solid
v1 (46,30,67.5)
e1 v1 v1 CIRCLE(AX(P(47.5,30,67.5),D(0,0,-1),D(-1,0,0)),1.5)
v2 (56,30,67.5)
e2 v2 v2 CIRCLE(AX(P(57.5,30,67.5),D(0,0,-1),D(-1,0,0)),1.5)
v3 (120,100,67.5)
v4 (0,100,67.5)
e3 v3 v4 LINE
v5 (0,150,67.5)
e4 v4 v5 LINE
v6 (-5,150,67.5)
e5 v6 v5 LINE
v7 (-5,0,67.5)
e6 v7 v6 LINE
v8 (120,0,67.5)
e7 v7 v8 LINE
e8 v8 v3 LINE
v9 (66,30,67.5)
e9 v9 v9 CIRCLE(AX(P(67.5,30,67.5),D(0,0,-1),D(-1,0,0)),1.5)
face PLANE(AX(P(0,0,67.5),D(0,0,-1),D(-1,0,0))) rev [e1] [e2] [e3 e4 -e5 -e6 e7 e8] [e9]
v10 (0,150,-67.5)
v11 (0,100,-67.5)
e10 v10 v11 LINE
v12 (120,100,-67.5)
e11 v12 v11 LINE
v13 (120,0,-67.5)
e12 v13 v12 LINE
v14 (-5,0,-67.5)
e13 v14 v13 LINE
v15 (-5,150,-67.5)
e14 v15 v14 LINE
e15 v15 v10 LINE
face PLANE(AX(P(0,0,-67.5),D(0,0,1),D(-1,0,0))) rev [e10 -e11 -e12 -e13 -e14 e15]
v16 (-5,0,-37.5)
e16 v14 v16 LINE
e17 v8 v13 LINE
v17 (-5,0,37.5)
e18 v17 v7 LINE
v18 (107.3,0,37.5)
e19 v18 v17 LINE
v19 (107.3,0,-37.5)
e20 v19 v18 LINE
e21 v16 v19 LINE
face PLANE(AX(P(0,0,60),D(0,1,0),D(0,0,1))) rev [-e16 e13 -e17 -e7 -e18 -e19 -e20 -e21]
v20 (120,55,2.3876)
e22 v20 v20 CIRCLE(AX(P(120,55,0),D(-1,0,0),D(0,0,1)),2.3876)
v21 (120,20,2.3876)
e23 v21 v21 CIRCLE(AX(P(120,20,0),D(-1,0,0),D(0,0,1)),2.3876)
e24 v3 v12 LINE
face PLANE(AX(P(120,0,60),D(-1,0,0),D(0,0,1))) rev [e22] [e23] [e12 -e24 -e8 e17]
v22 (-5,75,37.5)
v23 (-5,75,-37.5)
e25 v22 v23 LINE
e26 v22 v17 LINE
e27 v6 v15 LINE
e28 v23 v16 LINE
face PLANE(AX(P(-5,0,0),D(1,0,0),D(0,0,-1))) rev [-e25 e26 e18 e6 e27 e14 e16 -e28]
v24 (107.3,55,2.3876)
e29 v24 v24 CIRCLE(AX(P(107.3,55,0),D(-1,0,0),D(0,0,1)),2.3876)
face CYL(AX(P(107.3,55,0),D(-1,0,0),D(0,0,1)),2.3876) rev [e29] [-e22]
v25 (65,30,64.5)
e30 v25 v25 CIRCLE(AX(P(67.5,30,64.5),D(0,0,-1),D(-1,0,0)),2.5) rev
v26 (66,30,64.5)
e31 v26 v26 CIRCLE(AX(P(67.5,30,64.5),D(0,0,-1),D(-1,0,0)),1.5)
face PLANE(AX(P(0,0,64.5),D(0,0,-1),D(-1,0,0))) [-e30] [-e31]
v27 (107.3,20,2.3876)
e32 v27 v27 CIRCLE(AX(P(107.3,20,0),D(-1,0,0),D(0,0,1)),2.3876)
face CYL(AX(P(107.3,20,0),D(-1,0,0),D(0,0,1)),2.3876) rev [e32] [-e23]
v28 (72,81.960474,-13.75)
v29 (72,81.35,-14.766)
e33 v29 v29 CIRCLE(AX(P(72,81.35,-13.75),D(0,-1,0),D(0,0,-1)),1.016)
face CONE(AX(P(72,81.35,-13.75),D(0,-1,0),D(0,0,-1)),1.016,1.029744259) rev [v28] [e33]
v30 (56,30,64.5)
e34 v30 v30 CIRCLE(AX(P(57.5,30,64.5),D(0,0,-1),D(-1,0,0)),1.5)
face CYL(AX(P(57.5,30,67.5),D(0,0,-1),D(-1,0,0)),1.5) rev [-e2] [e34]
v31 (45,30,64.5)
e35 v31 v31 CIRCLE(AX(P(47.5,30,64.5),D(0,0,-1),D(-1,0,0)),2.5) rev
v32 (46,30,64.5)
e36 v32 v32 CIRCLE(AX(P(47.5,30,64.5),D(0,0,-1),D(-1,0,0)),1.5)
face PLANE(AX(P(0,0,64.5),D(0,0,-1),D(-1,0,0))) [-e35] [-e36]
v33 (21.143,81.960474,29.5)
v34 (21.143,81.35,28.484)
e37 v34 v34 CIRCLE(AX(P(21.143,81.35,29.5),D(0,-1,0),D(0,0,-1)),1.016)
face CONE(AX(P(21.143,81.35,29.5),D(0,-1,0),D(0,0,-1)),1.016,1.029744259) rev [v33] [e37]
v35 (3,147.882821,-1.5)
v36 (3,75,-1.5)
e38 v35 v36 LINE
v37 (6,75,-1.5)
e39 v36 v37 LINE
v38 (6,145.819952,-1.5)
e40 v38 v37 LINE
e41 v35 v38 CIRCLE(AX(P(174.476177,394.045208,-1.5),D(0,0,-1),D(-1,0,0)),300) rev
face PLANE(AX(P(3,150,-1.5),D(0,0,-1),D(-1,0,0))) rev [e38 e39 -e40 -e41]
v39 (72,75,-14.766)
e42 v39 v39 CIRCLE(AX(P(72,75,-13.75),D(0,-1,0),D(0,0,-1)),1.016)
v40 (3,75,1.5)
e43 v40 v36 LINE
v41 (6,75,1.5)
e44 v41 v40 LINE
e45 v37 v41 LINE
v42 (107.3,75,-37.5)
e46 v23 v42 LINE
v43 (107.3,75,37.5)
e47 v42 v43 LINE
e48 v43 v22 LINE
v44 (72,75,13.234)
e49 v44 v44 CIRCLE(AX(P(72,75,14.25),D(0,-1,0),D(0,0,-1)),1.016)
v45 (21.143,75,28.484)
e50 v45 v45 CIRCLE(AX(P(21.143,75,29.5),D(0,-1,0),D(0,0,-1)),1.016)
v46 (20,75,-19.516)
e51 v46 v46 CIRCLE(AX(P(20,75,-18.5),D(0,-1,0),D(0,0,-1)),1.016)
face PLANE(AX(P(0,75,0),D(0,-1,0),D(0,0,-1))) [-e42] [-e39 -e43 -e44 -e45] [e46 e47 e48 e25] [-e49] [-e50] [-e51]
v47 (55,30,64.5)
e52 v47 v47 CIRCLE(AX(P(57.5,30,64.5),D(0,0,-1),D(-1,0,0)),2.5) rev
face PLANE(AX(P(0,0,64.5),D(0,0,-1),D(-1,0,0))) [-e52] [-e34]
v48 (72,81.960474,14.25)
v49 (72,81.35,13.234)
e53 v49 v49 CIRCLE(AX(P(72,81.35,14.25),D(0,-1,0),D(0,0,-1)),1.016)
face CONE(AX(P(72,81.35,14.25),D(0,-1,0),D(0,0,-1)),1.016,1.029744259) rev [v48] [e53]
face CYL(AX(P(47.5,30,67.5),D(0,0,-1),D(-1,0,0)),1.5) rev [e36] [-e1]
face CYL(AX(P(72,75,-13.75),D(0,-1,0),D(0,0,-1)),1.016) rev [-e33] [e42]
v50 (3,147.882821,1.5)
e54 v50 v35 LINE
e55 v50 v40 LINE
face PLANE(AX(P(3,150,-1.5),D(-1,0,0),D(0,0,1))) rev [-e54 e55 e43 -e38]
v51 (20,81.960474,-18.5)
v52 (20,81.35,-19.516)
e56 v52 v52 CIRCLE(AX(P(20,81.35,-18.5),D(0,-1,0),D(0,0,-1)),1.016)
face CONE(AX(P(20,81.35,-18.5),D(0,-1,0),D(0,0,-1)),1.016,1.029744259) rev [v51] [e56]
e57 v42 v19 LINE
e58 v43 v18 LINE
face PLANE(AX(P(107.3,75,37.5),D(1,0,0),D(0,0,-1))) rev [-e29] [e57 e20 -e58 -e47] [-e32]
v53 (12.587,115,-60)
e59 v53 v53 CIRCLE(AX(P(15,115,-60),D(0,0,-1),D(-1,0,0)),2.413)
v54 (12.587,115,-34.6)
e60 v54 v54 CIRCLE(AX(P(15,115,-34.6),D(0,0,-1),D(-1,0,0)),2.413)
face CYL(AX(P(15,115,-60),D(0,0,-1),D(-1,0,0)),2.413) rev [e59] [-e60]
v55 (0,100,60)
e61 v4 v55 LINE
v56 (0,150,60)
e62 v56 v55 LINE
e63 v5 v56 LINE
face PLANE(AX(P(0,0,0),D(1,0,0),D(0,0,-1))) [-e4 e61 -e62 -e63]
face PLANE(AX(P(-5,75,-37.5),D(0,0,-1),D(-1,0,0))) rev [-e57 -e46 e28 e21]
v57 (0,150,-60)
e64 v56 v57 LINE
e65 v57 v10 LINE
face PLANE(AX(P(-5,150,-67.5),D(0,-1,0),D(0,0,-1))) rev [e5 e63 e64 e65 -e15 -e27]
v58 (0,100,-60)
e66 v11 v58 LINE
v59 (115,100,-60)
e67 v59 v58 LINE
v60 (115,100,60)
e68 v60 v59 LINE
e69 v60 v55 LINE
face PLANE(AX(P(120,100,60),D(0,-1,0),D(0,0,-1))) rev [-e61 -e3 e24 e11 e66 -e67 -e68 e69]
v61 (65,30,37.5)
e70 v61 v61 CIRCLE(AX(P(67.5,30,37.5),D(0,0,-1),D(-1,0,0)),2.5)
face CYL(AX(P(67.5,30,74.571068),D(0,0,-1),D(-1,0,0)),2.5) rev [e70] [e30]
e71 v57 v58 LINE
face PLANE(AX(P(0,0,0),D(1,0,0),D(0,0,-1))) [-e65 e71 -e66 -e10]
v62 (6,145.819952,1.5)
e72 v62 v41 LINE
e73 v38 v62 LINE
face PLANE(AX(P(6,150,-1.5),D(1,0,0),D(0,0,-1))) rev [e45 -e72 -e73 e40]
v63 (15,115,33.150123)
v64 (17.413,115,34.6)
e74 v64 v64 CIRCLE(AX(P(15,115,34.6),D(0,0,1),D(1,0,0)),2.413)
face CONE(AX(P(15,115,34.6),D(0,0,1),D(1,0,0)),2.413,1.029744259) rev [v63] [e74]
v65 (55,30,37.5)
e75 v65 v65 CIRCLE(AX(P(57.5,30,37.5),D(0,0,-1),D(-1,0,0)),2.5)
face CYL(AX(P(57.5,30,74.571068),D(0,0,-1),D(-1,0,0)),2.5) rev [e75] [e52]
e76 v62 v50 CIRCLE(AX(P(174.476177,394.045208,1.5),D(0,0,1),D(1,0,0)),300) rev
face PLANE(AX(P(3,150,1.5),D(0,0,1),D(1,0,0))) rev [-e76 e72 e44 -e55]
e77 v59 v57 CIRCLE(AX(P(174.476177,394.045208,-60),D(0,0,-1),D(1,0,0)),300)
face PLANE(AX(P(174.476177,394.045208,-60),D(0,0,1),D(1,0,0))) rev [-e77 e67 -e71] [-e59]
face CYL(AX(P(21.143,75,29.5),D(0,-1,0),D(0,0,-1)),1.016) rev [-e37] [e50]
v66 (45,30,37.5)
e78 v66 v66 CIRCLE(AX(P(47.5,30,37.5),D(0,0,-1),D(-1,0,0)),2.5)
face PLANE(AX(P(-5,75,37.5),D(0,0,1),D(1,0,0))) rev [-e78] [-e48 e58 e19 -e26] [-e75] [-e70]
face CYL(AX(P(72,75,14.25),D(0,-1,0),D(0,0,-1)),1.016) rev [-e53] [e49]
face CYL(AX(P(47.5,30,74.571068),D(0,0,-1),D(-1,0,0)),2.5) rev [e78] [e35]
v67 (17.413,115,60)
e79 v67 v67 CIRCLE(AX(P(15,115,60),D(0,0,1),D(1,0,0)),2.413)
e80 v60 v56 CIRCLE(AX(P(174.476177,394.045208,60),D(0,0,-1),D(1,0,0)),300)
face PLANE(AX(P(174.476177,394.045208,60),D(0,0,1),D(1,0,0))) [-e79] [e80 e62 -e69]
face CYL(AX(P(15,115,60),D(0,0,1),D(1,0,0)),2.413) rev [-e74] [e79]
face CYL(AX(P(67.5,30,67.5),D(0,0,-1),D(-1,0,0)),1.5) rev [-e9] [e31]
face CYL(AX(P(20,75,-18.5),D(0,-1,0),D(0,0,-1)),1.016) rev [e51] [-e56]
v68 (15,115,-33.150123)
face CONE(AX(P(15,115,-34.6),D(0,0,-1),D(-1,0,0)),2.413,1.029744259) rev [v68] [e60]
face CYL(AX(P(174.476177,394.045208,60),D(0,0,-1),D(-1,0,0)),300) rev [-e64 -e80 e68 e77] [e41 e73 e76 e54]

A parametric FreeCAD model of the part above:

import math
import FreeCAD as App
import Part
import Sketcher

V = App.Vector
Q = App.Units.Quantity

doc = App.newDocument("Part")
body = doc.addObject("PartDesign::Body", "Body")

# Sketch on XY plane
sketch1 = body.newObject("Sketcher::SketchObject", "Sketch")
sketch1.AttachmentSupport = (doc.getObject("XY_Plane"), [""])
sketch1.MapMode = "FlatFace"
sketch1.addGeometry(Part.LineSegment(V(0, 0, 0), V(120, 0, 0)), False)
sketch1.addGeometry(Part.LineSegment(V(120, 0, 0), V(120, 100, 0)), False)
sketch1.addGeometry(Part.LineSegment(V(120, 100, 0), V(115, 100, 0)), False)
sketch1.addGeometry(Part.ArcOfCircle(Part.Circle(V(174, 394, 0), V(0, 0, 1), 300), math.radians(-126), math.radians(-101)), False)
sketch1.addGeometry(Part.LineSegment(V(0, 150, 0), V(0, 0, 0)), False)
sketch1.addConstraint(Sketcher.Constraint("Coincident", 0, 2, 1, 1))
sketch1.addConstraint(Sketcher.Constraint("Coincident", 1, 2, 2, 1))
sketch1.addConstraint(Sketcher.Constraint("Coincident", 2, 2, 3, 2))
sketch1.addConstraint(Sketcher.Constraint("Coincident", 3, 1, 4, 1))
sketch1.addConstraint(Sketcher.Constraint("Coincident", 4, 2, 0, 1))
sketch1.addConstraint(Sketcher.Constraint("Horizontal", 0))
sketch1.addConstraint(Sketcher.Constraint("Vertical", 1))
sketch1.addConstraint(Sketcher.Constraint("Horizontal", 2))
sketch1.addConstraint(Sketcher.Constraint("Vertical", 4))
sketch1.addConstraint(Sketcher.Constraint("Coincident", 4, 2, -1, 1))
sketch1.addConstraint(Sketcher.Constraint("Radius", 3, 300.0))
sketch1.addConstraint(Sketcher.Constraint("DistanceX", 0, 1, 0, 2, 120.0))
sketch1.addConstraint(Sketcher.Constraint("DistanceX", 2, 2, 2, 1, 5.0))
sketch1.addConstraint(Sketcher.Constraint("DistanceY", 1, 1, 1, 2, 100.0))
sketch1.addConstraint(Sketcher.Constraint("DistanceY", 4, 2, 4, 1, 150.0))
pad1 = body.newObject("PartDesign::Pad", "Pad")
pad1.Profile = sketch1
pad1.Length = 120
pad1.Midplane = True

# Sketch on XY plane
sketch2 = body.newObject("Sketcher::SketchObject", "Sketch001")
sketch2.AttachmentSupport = (doc.getObject("XY_Plane"), [""])
sketch2.MapMode = "FlatFace"
sketch2.AttachmentOffset = App.Placement(V(0, 0, 60), App.Rotation())
sketch2.addGeometry(Part.LineSegment(V(0, 100, 0), V(0, 0, 0)), False)
sketch2.addGeometry(Part.LineSegment(V(0, 0, 0), V(120, 0, 0)), False)
sketch2.addGeometry(Part.LineSegment(V(120, 0, 0), V(120, 100, 0)), False)
sketch2.addGeometry(Part.LineSegment(V(120, 100, 0), V(0, 100, 0)), False)
sketch2.addConstraint(Sketcher.Constraint("Coincident", 0, 2, 1, 1))
sketch2.addConstraint(Sketcher.Constraint("Coincident", 1, 2, 2, 1))
sketch2.addConstraint(Sketcher.Constraint("Coincident", 2, 2, 3, 1))
sketch2.addConstraint(Sketcher.Constraint("Coincident", 3, 2, 0, 1))
sketch2.addConstraint(Sketcher.Constraint("Vertical", 0))
sketch2.addConstraint(Sketcher.Constraint("Horizontal", 1))
sketch2.addConstraint(Sketcher.Constraint("Vertical", 2))
sketch2.addConstraint(Sketcher.Constraint("Horizontal", 3))
sketch2.addConstraint(Sketcher.Constraint("Coincident", 0, 2, -1, 1))
sketch2.addConstraint(Sketcher.Constraint("DistanceX", 1, 1, 1, 2, 120.0))
sketch2.addConstraint(Sketcher.Constraint("DistanceY", 0, 2, 0, 1, 100.0))
pad2 = body.newObject("PartDesign::Pad", "Pad001")
pad2.Profile = sketch2
pad2.Length = 7.5
doc.recompute()

mirrored = body.newObject("PartDesign::Mirrored", "Mirrored")
mirrored.Originals = [pad2]
mirrored.MirrorPlane = (doc.getObject("XY_Plane"), [""])
body.Tip = mirrored

# Sketch on YZ plane
sketch3 = body.newObject("Sketcher::SketchObject", "Sketch002")
sketch3.AttachmentSupport = (doc.getObject("YZ_Plane"), [""])
sketch3.MapMode = "FlatFace"
sketch3.addGeometry(Part.LineSegment(V(150, -68, 0), V(0, -68, 0)), False)
sketch3.addGeometry(Part.LineSegment(V(0, -68, 0), V(0, 68, 0)), False)
sketch3.addGeometry(Part.LineSegment(V(0, 68, 0), V(150, 68, 0)), False)
sketch3.addGeometry(Part.LineSegment(V(150, 68, 0), V(150, -68, 0)), False)
sketch3.addConstraint(Sketcher.Constraint("Coincident", 0, 2, 1, 1))
sketch3.addConstraint(Sketcher.Constraint("Coincident", 1, 2, 2, 1))
sketch3.addConstraint(Sketcher.Constraint("Coincident", 2, 2, 3, 1))
sketch3.addConstraint(Sketcher.Constraint("Coincident", 3, 2, 0, 1))
sketch3.addConstraint(Sketcher.Constraint("Horizontal", 0))
sketch3.addConstraint(Sketcher.Constraint("Vertical", 1))
sketch3.addConstraint(Sketcher.Constraint("Horizontal", 2))
sketch3.addConstraint(Sketcher.Constraint("Vertical", 3))
sketch3.addConstraint(Sketcher.Constraint("Symmetric", 0, 2, 1, 2, -1, 1))
sketch3.addConstraint(Sketcher.Constraint("DistanceX", 0, 2, 0, 1, 150.0))
sketch3.addConstraint(Sketcher.Constraint("DistanceY", 1, 1, 1, 2, 135.0))
pad3 = body.newObject("PartDesign::Pad", "Pad002")
pad3.Profile = sketch3
pad3.Length = 5
pad3.Reversed = True

# Sketch on XZ plane
sketch4 = body.newObject("Sketcher::SketchObject", "Sketch003")
sketch4.AttachmentSupport = (doc.getObject("XZ_Plane"), [""])
sketch4.MapMode = "FlatFace"
sketch4.addGeometry(Part.LineSegment(V(-5, 38, 0), V(-5, -38, 0)), False)
sketch4.addGeometry(Part.LineSegment(V(-5, -38, 0), V(107, -38, 0)), False)
sketch4.addGeometry(Part.LineSegment(V(107, -38, 0), V(107, 38, 0)), False)
sketch4.addGeometry(Part.LineSegment(V(107, 38, 0), V(-5, 38, 0)), False)
sketch4.addConstraint(Sketcher.Constraint("Coincident", 0, 2, 1, 1))
sketch4.addConstraint(Sketcher.Constraint("Coincident", 1, 2, 2, 1))
sketch4.addConstraint(Sketcher.Constraint("Coincident", 2, 2, 3, 1))
sketch4.addConstraint(Sketcher.Constraint("Coincident", 3, 2, 0, 1))
sketch4.addConstraint(Sketcher.Constraint("Vertical", 0))
sketch4.addConstraint(Sketcher.Constraint("Horizontal", 1))
sketch4.addConstraint(Sketcher.Constraint("Vertical", 2))
sketch4.addConstraint(Sketcher.Constraint("Horizontal", 3))
sketch4.addConstraint(Sketcher.Constraint("DistanceY", 0, 2, 0, 1, 75.0))
sketch4.addConstraint(Sketcher.Constraint("DistanceX", 1, 1, 1, 2, 112.3))
sketch4.addConstraint(Sketcher.Constraint("DistanceX", 0, 2, -1, 1, 5.0))
sketch4.addConstraint(Sketcher.Constraint("DistanceY", 0, 2, -1, 1, 37.5))
pocket1 = body.newObject("PartDesign::Pocket", "Pocket")
pocket1.Profile = sketch4
pocket1.Length = 75

# Sketch on YZ plane
sketch5 = body.newObject("Sketcher::SketchObject", "Sketch004")
sketch5.AttachmentSupport = (doc.getObject("YZ_Plane"), [""])
sketch5.MapMode = "FlatFace"
sketch5.AttachmentOffset = App.Placement(V(0, 0, 107.3), App.Rotation())
sketch5.addGeometry(Part.Circle(V(55, 0, 0), V(0, 0, 1), 2.4), False)
sketch5.addGeometry(Part.Circle(V(20, 0, 0), V(0, 0, 1), 2.4), False)
sketch5.addConstraint(Sketcher.Constraint("Equal", 0, 1))
sketch5.addConstraint(Sketcher.Constraint("PointOnObject", 0, 3, -1))
sketch5.addConstraint(Sketcher.Constraint("PointOnObject", 1, 3, -1))
sketch5.addConstraint(Sketcher.Constraint("DistanceX", -1, 1, 0, 3, 55.0))
sketch5.addConstraint(Sketcher.Constraint("DistanceX", -1, 1, 1, 3, 20.0))
sketch5.addConstraint(Sketcher.Constraint("Diameter", 0, 4.7752))
doc.recompute()
hole = body.newObject("PartDesign::Hole", "Hole")
hole.Profile = sketch5
hole.ThreadType = "None"
hole.Diameter = 4.7752
hole.DepthType = "ThroughAll"
hole.Reversed = True

# Sketch on XZ plane
sketch6 = body.newObject("Sketcher::SketchObject", "Sketch005")
sketch6.AttachmentSupport = (doc.getObject("XZ_Plane"), [""])
sketch6.MapMode = "FlatFace"
sketch6.AttachmentOffset = App.Placement(V(0, 0, -75), App.Rotation())
sketch6.addGeometry(Part.Circle(V(20, -18.5, 0), V(0, 0, 1), 1), False)
sketch6.addGeometry(Part.Circle(V(72, 14.2, 0), V(0, 0, 1), 1), False)
sketch6.addGeometry(Part.Circle(V(72, -13.8, 0), V(0, 0, 1), 1), False)
sketch6.addGeometry(Part.Circle(V(21.1, 29.5, 0), V(0, 0, 1), 1), False)
sketch6.addConstraint(Sketcher.Constraint("Equal", 0, 1))
sketch6.addConstraint(Sketcher.Constraint("Equal", 1, 2))
sketch6.addConstraint(Sketcher.Constraint("Equal", 2, 3))
sketch6.addConstraint(Sketcher.Constraint("Vertical", 1, 3, 2, 3))
sketch6.addConstraint(Sketcher.Constraint("Diameter", 0, 2.032))
sketch6.addConstraint(Sketcher.Constraint("DistanceX", -1, 1, 0, 3, 20.0))
sketch6.addConstraint(Sketcher.Constraint("DistanceX", -1, 1, 1, 3, 72.0))
sketch6.addConstraint(Sketcher.Constraint("DistanceY", 2, 3, 1, 3, 28.0))
sketch6.addConstraint(Sketcher.Constraint("DistanceY", 0, 3, 3, 3, 48.0))
sketch6.addConstraint(Sketcher.Constraint("DistanceY", 0, 3, -1, 1, 18.5))
sketch6.addConstraint(Sketcher.Constraint("DistanceY", -1, 1, 1, 3, 14.25))
sketch6.addConstraint(Sketcher.Constraint("DistanceX", -1, 1, 3, 3, 21.143))
doc.recompute()
hole2 = body.newObject("PartDesign::Hole", "Hole001")
hole2.Profile = sketch6
hole2.ThreadType = "None"
hole2.Diameter = 2.032
hole2.DepthType = "Dimension"
hole2.Depth = 6.35
hole2.DrillPoint = "Angled"
hole2.DrillPointAngle = 118

# Sketch on YZ plane
sketch7 = body.newObject("Sketcher::SketchObject", "Sketch006")
sketch7.AttachmentSupport = (doc.getObject("YZ_Plane"), [""])
sketch7.MapMode = "FlatFace"
sketch7.AttachmentOffset = App.Placement(V(0, 0, 15), App.Rotation())
sketch7.addGeometry(Part.LineSegment(V(115, 33.2, 0), V(115, 60, 0)), False)
sketch7.addGeometry(Part.LineSegment(V(115, 60, 0), V(112.6, 60, 0)), False)
sketch7.addGeometry(Part.LineSegment(V(112.6, 60, 0), V(112.6, 34.6, 0)), False)
sketch7.addGeometry(Part.LineSegment(V(112.6, 34.6, 0), V(115, 33.2, 0)), False)
sketch7.addGeometry(Part.LineSegment(V(115, 60, 0), V(115, 33.2, 0)), True)  # axis
sketch7.addConstraint(Sketcher.Constraint("Coincident", 0, 2, 1, 1))
sketch7.addConstraint(Sketcher.Constraint("Coincident", 1, 2, 2, 1))
sketch7.addConstraint(Sketcher.Constraint("Coincident", 2, 2, 3, 1))
sketch7.addConstraint(Sketcher.Constraint("Coincident", 3, 2, 0, 1))
sketch7.addConstraint(Sketcher.Constraint("Vertical", 0))
sketch7.addConstraint(Sketcher.Constraint("Horizontal", 1))
sketch7.addConstraint(Sketcher.Constraint("Vertical", 2))
sketch7.addConstraint(Sketcher.Constraint("Vertical", 4))
sketch7.addConstraint(Sketcher.Constraint("Coincident", 4, 1, 0, 2))
sketch7.addConstraint(Sketcher.Constraint("Equal", 0, 4))
sketch7.addConstraint(Sketcher.Constraint("Angle", 3, Q("-31 deg")))
sketch7.addConstraint(Sketcher.Constraint("DistanceY", 2, 2, 2, 1, 25.4))
sketch7.addConstraint(Sketcher.Constraint("DistanceX", -1, 1, 0, 2, 115.0))
sketch7.addConstraint(Sketcher.Constraint("DistanceY", -1, 1, 0, 2, 60.0))
sketch7.addConstraint(Sketcher.Constraint("DistanceX", 1, 2, 1, 1, 2.413))
groove = body.newObject("PartDesign::Groove", "Groove")
groove.Profile = sketch7
groove.ReferenceAxis = (sketch7, ["Axis0"])
groove.Angle = 360
doc.recompute()

mirrored2 = body.newObject("PartDesign::Mirrored", "Mirrored001")
mirrored2.Originals = [groove]
mirrored2.MirrorPlane = (doc.getObject("XY_Plane"), [""])
body.Tip = mirrored2

# Sketch on XZ plane
sketch8 = body.newObject("Sketcher::SketchObject", "Sketch007")
sketch8.AttachmentSupport = (doc.getObject("XZ_Plane"), [""])
sketch8.MapMode = "FlatFace"
sketch8.AttachmentOffset = App.Placement(V(0, 0, -75), App.Rotation())
sketch8.addGeometry(Part.LineSegment(V(3, 1.5, 0), V(3, -1.5, 0)), False)
sketch8.addGeometry(Part.LineSegment(V(3, -1.5, 0), V(6, -1.5, 0)), False)
sketch8.addGeometry(Part.LineSegment(V(6, -1.5, 0), V(6, 1.5, 0)), False)
sketch8.addGeometry(Part.LineSegment(V(6, 1.5, 0), V(3, 1.5, 0)), False)
sketch8.addConstraint(Sketcher.Constraint("Coincident", 0, 2, 1, 1))
sketch8.addConstraint(Sketcher.Constraint("Coincident", 1, 2, 2, 1))
sketch8.addConstraint(Sketcher.Constraint("Coincident", 2, 2, 3, 1))
sketch8.addConstraint(Sketcher.Constraint("Coincident", 3, 2, 0, 1))
sketch8.addConstraint(Sketcher.Constraint("Vertical", 0))
sketch8.addConstraint(Sketcher.Constraint("Horizontal", 1))
sketch8.addConstraint(Sketcher.Constraint("Vertical", 2))
sketch8.addConstraint(Sketcher.Constraint("Horizontal", 3))
sketch8.addConstraint(Sketcher.Constraint("Equal", 3, 0))
sketch8.addConstraint(Sketcher.Constraint("DistanceX", 1, 1, 1, 2, 3.0))
sketch8.addConstraint(Sketcher.Constraint("DistanceX", -1, 1, 0, 2, 3.0))
sketch8.addConstraint(Sketcher.Constraint("DistanceY", 0, 2, -1, 1, 1.5))
pocket2 = body.newObject("PartDesign::Pocket", "Pocket001")
pocket2.Profile = sketch8
pocket2.Type = "ThroughAll"

# Sketch on XY plane
sketch9 = body.newObject("Sketcher::SketchObject", "Sketch008")
sketch9.AttachmentSupport = (doc.getObject("XY_Plane"), [""])
sketch9.MapMode = "FlatFace"
sketch9.AttachmentOffset = App.Placement(V(0, 0, 37.5), App.Rotation())
sketch9.addGeometry(Part.Circle(V(67.5, 30, 0), V(0, 0, 1), 2.5), False)
sketch9.addGeometry(Part.Circle(V(57.5, 30, 0), V(0, 0, 1), 2.5), False)
sketch9.addGeometry(Part.Circle(V(47.5, 30, 0), V(0, 0, 1), 2.5), False)
sketch9.addConstraint(Sketcher.Constraint("Equal", 0, 1))
sketch9.addConstraint(Sketcher.Constraint("Equal", 1, 2))
sketch9.addConstraint(Sketcher.Constraint("Horizontal", 0, 3, 1, 3))
sketch9.addConstraint(Sketcher.Constraint("Horizontal", 1, 3, 2, 3))
sketch9.addConstraint(Sketcher.Constraint("Diameter", 0, 5.0))
sketch9.addConstraint(Sketcher.Constraint("DistanceY", -1, 1, 0, 3, 30.0))
sketch9.addConstraint(Sketcher.Constraint("DistanceX", 1, 3, 0, 3, 10.0))
sketch9.addConstraint(Sketcher.Constraint("DistanceX", 2, 3, 1, 3, 10.0))
sketch9.addConstraint(Sketcher.Constraint("DistanceX", -1, 1, 0, 3, 67.5))
pocket3 = body.newObject("PartDesign::Pocket", "Pocket002")
pocket3.Profile = sketch9
pocket3.Length = 27
pocket3.Reversed = True

# Sketch on XY plane
sketch10 = body.newObject("Sketcher::SketchObject", "Sketch009")
sketch10.AttachmentSupport = (doc.getObject("XY_Plane"), [""])
sketch10.MapMode = "FlatFace"
sketch10.AttachmentOffset = App.Placement(V(0, 0, 64.5), App.Rotation())
sketch10.addGeometry(Part.Circle(V(67.5, 30, 0), V(0, 0, 1), 1.5), False)
sketch10.addGeometry(Part.Circle(V(57.5, 30, 0), V(0, 0, 1), 1.5), False)
sketch10.addGeometry(Part.Circle(V(47.5, 30, 0), V(0, 0, 1), 1.5), False)
sketch10.addConstraint(Sketcher.Constraint("Equal", 0, 1))
sketch10.addConstraint(Sketcher.Constraint("Equal", 1, 2))
sketch10.addConstraint(Sketcher.Constraint("Horizontal", 0, 3, 1, 3))
sketch10.addConstraint(Sketcher.Constraint("Horizontal", 1, 3, 2, 3))
sketch10.addConstraint(Sketcher.Constraint("Diameter", 0, 3.0))
sketch10.addConstraint(Sketcher.Constraint("DistanceY", -1, 1, 0, 3, 30.0))
sketch10.addConstraint(Sketcher.Constraint("DistanceX", 1, 3, 0, 3, 10.0))
sketch10.addConstraint(Sketcher.Constraint("DistanceX", 2, 3, 1, 3, 10.0))
sketch10.addConstraint(Sketcher.Constraint("DistanceX", -1, 1, 0, 3, 67.5))
pocket4 = body.newObject("PartDesign::Pocket", "Pocket003")
pocket4.Profile = sketch10
pocket4.Type = "ThroughAll"
pocket4.Reversed = True

doc.recompute()
